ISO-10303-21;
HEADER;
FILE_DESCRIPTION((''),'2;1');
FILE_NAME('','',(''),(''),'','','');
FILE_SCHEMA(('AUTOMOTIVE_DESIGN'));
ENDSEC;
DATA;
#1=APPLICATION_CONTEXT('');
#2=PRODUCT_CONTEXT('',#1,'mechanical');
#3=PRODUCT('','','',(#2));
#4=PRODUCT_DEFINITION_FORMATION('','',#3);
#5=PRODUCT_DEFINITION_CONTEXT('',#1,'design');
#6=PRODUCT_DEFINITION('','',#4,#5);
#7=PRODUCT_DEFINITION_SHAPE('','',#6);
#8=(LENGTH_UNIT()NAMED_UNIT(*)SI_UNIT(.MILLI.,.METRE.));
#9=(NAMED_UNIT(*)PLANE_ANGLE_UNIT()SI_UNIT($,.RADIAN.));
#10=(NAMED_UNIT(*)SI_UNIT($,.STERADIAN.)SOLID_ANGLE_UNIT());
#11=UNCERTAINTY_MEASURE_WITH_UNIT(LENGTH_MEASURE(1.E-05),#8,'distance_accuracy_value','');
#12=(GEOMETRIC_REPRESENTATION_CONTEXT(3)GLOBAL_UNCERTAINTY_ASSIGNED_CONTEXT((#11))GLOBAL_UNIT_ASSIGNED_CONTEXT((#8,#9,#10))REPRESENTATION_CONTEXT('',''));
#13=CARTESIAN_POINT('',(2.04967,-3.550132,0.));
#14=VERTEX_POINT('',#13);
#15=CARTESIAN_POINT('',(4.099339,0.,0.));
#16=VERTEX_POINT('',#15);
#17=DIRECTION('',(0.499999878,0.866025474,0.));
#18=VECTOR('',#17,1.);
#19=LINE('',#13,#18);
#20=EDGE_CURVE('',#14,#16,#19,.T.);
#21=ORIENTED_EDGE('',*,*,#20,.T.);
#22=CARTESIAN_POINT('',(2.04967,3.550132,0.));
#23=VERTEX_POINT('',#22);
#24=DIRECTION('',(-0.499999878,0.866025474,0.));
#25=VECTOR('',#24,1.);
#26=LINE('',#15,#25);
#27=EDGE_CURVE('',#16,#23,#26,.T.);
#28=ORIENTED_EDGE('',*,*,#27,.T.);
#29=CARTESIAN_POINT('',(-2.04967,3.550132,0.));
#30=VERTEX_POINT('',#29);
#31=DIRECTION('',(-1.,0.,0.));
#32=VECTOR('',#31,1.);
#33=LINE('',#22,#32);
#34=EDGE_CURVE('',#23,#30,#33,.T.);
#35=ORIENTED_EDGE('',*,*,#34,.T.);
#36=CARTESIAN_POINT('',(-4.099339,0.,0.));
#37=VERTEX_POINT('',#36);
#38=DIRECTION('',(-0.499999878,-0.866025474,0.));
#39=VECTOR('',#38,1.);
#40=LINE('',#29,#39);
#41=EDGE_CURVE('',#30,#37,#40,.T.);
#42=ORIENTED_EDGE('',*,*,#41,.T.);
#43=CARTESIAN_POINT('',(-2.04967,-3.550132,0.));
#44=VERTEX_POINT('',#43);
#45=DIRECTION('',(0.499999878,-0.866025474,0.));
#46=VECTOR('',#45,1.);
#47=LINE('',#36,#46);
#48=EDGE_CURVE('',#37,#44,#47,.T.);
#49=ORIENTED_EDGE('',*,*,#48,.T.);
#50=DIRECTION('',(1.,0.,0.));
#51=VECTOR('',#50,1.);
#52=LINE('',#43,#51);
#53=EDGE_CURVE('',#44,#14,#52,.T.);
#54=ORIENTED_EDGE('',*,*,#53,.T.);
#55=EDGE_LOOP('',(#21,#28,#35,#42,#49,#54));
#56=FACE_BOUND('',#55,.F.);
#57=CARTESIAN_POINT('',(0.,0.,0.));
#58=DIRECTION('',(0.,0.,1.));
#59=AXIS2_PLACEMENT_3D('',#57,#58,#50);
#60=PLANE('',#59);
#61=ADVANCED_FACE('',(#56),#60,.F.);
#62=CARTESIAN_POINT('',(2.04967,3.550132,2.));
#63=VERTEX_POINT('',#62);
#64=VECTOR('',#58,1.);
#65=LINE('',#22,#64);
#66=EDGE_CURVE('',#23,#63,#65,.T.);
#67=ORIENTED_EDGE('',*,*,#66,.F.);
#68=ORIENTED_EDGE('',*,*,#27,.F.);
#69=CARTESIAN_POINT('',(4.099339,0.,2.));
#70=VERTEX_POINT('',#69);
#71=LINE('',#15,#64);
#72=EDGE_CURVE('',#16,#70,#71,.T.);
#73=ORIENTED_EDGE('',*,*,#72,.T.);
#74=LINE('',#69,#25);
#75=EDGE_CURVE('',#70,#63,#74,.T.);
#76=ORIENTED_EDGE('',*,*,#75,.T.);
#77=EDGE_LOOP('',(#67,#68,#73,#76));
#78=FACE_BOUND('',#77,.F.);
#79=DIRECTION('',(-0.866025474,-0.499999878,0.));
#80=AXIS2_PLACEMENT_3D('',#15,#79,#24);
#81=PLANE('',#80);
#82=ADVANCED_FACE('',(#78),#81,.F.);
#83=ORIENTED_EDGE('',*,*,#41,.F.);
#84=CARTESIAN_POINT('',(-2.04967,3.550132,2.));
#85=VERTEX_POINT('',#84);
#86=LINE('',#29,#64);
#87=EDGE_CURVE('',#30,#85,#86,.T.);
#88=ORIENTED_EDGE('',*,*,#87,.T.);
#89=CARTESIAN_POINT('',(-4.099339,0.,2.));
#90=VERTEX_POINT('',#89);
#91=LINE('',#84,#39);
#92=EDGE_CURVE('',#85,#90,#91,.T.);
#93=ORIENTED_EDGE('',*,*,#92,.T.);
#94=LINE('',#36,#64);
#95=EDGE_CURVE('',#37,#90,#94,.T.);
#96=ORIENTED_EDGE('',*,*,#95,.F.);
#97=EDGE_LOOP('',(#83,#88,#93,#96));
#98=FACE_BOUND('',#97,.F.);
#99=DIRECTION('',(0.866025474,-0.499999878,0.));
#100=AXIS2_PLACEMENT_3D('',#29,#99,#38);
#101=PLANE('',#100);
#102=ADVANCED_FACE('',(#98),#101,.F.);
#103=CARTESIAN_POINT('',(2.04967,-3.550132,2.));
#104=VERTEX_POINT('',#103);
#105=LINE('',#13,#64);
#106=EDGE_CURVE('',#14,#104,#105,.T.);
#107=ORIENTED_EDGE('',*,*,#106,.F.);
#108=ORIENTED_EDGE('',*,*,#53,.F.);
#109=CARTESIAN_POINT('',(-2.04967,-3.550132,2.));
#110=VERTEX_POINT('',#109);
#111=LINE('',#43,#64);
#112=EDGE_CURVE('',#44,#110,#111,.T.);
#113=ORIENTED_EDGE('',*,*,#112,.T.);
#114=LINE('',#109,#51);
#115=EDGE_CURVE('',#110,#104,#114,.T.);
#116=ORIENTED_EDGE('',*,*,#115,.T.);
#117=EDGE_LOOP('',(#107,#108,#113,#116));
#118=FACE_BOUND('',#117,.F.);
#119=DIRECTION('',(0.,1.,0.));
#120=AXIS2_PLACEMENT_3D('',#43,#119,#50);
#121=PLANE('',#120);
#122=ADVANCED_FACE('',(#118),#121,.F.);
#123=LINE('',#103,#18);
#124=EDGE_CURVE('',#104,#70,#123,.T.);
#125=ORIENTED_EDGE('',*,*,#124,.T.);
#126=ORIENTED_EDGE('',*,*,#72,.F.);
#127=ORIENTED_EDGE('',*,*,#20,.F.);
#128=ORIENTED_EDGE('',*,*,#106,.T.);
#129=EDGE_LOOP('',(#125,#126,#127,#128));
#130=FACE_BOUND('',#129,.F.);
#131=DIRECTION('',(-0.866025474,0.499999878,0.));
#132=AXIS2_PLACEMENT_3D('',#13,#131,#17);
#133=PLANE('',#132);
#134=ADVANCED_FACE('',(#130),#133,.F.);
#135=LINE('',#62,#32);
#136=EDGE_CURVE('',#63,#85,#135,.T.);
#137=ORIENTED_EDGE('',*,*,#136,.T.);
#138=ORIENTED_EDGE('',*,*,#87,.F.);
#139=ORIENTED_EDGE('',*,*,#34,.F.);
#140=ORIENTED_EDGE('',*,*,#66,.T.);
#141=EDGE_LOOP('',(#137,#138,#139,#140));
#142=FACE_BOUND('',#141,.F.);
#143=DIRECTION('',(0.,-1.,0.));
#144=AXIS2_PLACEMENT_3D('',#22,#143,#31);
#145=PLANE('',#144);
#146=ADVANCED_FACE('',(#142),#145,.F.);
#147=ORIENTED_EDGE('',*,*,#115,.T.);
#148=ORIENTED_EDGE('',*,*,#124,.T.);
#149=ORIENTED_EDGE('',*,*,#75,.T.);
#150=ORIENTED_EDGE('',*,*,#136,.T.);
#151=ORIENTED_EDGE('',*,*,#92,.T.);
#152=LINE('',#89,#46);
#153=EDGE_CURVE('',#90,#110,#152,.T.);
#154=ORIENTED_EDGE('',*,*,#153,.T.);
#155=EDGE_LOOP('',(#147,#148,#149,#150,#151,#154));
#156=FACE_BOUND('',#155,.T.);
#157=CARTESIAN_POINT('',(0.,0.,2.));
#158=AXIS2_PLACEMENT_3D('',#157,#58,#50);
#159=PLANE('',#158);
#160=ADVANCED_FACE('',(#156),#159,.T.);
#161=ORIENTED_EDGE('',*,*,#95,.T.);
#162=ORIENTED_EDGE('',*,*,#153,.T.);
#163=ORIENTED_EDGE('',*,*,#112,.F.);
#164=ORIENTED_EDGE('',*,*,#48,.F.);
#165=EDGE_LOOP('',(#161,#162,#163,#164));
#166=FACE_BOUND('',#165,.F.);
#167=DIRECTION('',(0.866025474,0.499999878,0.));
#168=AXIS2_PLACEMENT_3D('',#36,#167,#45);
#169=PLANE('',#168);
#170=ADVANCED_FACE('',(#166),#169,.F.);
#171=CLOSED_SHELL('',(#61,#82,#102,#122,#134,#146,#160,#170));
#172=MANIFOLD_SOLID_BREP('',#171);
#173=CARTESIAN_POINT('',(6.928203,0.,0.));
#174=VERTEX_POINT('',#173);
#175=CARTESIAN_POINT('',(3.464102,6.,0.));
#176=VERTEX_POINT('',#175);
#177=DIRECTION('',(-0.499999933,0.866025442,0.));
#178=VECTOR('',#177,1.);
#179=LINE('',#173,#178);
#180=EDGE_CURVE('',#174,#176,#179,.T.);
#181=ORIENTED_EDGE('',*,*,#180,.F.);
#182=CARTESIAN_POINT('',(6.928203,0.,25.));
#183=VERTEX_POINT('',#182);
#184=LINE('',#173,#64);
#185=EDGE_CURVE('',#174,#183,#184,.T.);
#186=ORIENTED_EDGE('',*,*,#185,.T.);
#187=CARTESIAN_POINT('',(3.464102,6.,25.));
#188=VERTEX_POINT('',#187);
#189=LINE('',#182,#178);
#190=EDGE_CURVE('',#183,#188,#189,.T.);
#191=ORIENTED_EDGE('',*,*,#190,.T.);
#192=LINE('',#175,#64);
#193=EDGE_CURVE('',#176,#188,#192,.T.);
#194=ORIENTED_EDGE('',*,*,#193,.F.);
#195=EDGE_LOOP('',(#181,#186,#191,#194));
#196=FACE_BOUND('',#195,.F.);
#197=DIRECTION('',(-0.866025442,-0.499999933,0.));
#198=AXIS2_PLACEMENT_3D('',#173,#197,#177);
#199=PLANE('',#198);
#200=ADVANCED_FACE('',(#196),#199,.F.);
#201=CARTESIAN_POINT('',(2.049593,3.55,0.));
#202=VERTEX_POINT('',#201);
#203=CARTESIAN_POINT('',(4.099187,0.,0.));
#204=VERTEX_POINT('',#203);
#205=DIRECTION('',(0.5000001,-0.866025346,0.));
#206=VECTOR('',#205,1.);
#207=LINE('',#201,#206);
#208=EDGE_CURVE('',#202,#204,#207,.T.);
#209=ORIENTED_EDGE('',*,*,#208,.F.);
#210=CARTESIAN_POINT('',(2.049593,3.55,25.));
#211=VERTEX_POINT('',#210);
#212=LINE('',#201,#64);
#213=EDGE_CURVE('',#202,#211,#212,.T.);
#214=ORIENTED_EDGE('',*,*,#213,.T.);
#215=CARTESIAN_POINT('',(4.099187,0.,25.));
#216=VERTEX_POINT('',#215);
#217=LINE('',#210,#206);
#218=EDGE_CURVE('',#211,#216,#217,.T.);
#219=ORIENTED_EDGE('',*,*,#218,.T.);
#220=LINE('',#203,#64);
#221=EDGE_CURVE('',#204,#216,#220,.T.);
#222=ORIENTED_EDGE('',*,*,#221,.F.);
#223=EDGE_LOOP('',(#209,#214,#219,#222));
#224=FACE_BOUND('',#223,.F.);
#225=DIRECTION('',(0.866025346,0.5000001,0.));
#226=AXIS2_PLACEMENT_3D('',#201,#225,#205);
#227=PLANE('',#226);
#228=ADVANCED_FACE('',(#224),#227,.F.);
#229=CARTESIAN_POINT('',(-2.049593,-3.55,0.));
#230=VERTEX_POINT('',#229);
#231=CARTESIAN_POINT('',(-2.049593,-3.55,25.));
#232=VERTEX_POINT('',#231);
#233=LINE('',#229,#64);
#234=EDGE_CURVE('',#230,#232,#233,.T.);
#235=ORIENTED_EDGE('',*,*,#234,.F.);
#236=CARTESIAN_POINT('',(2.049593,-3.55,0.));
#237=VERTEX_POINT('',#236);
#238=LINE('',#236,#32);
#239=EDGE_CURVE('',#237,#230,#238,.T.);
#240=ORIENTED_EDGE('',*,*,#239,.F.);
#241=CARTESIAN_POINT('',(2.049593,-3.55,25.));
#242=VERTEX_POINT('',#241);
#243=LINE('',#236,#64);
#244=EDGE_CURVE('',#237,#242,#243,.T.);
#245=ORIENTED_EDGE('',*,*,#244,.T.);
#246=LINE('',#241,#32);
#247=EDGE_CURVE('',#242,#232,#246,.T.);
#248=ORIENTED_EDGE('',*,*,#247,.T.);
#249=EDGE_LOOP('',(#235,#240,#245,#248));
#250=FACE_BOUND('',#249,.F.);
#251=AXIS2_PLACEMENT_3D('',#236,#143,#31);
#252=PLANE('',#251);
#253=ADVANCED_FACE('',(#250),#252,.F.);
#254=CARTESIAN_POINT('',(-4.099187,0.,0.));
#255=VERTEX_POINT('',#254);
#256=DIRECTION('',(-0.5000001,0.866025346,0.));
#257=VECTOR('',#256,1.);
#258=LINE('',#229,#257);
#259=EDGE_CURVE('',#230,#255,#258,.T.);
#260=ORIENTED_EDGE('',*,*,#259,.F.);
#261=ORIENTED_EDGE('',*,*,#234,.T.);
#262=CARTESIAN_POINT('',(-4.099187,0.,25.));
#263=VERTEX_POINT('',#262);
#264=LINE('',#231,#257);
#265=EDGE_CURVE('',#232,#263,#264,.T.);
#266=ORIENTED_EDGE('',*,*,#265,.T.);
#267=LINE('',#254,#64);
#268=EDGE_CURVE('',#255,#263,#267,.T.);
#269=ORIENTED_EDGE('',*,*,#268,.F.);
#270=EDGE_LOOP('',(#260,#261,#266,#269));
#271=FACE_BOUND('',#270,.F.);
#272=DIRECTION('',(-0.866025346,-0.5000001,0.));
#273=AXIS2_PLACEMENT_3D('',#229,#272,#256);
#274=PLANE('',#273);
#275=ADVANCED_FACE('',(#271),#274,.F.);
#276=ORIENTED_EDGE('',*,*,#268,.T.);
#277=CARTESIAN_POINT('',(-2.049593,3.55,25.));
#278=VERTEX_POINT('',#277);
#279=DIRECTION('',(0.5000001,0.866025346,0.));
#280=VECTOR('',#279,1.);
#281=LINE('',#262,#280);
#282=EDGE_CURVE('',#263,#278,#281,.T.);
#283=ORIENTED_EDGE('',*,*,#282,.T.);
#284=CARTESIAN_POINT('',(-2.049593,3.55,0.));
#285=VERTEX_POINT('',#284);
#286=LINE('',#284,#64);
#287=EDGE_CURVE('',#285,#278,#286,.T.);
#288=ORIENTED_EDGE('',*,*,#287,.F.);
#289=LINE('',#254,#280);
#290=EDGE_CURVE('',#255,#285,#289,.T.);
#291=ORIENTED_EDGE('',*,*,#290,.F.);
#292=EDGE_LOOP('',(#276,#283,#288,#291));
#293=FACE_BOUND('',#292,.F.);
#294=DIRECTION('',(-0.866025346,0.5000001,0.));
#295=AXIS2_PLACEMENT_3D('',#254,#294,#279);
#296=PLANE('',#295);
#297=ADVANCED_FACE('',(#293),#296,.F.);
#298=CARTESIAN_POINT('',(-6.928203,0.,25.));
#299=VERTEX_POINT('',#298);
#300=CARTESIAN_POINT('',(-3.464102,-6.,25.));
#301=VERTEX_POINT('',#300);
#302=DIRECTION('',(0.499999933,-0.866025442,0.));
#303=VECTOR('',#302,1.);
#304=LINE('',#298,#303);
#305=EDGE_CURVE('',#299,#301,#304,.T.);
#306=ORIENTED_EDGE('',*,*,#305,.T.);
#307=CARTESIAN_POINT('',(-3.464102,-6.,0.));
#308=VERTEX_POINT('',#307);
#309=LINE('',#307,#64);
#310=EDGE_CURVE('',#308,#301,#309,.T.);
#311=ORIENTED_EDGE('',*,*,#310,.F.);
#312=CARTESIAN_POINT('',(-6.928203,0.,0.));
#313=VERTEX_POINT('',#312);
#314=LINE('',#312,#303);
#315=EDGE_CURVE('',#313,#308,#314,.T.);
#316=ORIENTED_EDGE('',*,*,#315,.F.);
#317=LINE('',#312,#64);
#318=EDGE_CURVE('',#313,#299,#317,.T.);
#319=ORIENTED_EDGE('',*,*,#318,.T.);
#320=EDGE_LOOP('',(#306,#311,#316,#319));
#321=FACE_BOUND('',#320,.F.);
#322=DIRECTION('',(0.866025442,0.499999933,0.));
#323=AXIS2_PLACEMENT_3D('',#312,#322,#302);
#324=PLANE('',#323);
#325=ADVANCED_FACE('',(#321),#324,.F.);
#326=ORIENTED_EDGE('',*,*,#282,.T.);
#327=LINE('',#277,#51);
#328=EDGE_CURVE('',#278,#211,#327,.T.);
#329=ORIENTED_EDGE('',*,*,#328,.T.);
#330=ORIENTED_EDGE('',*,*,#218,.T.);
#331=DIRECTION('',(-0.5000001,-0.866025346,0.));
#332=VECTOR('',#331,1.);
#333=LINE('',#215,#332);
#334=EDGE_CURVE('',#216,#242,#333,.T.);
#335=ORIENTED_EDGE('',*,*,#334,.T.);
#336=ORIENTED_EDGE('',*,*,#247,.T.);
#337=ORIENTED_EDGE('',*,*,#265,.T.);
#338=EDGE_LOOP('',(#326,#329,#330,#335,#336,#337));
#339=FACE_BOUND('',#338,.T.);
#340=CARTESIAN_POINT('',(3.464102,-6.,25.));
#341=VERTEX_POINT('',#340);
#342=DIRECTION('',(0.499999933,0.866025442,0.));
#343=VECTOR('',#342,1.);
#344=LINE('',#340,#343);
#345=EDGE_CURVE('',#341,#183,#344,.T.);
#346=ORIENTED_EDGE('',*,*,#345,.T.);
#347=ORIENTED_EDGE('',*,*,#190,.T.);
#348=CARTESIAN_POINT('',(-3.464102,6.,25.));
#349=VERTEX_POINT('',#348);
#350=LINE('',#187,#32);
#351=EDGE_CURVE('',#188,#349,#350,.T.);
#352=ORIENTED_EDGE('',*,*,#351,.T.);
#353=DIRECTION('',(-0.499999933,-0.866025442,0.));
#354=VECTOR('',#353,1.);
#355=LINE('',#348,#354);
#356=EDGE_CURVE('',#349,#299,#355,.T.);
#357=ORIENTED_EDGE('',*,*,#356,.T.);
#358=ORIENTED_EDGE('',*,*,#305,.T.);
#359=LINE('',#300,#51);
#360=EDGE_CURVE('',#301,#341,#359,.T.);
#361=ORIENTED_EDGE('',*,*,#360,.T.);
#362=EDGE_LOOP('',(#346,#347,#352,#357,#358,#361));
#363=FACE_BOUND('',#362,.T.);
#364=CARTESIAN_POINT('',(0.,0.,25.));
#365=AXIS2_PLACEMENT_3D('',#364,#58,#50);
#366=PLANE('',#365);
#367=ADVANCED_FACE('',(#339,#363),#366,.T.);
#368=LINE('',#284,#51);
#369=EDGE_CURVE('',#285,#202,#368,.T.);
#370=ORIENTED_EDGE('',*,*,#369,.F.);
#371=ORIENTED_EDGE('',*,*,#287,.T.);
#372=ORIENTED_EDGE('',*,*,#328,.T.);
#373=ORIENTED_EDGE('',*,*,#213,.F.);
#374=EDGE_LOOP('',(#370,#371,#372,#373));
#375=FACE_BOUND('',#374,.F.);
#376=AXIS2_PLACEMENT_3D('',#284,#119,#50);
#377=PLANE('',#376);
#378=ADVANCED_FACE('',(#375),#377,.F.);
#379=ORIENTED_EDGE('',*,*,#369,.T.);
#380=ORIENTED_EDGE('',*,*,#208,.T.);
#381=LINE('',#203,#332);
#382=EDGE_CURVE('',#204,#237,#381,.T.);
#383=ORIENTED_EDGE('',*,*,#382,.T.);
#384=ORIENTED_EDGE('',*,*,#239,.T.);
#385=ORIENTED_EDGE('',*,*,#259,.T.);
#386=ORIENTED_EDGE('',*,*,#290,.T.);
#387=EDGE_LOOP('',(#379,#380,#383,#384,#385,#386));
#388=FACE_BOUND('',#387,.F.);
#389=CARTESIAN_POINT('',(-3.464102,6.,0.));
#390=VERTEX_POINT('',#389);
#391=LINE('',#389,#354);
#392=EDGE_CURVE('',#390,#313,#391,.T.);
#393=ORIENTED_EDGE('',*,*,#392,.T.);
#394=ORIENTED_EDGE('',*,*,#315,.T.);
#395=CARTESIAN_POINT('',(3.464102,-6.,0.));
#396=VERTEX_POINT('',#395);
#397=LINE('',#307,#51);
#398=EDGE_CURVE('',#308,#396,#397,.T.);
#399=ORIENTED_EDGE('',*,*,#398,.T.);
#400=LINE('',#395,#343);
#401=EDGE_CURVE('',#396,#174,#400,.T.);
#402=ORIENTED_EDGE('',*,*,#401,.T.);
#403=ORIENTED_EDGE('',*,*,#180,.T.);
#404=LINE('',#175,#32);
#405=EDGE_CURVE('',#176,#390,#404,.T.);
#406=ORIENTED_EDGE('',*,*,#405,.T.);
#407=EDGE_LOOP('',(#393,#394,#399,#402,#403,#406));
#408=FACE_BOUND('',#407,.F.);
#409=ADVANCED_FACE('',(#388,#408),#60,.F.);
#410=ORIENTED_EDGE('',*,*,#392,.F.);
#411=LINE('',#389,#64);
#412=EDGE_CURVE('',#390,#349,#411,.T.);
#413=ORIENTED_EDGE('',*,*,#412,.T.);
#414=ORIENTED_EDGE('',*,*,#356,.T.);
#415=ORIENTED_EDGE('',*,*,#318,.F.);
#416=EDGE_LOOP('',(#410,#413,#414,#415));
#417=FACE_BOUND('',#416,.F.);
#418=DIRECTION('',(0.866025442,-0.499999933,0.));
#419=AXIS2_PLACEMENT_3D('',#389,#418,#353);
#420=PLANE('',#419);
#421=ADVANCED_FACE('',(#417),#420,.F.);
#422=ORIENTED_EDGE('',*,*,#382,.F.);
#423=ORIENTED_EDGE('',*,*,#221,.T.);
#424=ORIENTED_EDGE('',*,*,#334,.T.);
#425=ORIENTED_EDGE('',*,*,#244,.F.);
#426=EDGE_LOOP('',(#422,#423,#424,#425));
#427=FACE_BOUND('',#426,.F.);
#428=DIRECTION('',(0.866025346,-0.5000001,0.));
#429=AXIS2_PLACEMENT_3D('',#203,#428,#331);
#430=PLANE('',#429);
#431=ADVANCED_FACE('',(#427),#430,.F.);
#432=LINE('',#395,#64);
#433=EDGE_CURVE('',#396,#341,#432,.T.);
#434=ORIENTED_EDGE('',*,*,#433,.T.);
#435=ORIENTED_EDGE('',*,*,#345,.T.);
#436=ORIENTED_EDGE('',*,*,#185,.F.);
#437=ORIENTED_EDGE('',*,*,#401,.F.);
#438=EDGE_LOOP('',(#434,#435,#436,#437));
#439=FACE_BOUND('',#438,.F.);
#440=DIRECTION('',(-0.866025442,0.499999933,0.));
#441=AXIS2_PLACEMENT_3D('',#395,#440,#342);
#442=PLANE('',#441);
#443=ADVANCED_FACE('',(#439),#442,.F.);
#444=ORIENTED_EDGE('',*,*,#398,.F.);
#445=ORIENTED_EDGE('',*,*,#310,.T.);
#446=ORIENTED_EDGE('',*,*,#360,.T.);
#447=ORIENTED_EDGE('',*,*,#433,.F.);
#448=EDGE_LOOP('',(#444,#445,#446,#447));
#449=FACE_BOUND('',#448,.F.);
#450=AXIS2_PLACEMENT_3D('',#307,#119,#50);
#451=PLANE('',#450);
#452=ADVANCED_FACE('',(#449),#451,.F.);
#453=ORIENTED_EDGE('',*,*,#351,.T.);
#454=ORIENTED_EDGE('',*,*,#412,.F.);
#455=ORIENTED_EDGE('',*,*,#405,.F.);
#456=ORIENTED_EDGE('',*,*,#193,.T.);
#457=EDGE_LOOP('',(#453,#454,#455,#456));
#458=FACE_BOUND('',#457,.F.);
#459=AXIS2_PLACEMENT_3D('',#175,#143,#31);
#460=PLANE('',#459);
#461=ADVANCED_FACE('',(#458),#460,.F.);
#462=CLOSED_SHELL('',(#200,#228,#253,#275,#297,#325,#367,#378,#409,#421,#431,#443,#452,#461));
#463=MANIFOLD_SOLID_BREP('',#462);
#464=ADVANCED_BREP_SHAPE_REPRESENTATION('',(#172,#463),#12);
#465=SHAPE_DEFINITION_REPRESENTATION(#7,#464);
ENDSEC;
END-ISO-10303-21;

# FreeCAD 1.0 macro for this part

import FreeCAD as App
import Part
import Sketcher

V = App.Vector
Q = App.Units.Quantity

doc = App.newDocument("Part")
body = doc.addObject("PartDesign::Body", "Body")

# Sketch on XY plane
sketch1 = body.newObject("Sketcher::SketchObject", "Sketch")
sketch1.AttachmentSupport = (doc.getObject("XY_Plane"), [""])
sketch1.MapMode = "FlatFace"
sketch1.addGeometry(Part.LineSegment(V(-3.5, -6, 0), V(3.5, -6, 0)), False)
sketch1.addGeometry(Part.LineSegment(V(3.5, -6, 0), V(6.9, 0, 0)), False)
sketch1.addGeometry(Part.LineSegment(V(6.9, 0, 0), V(3.5, 6, 0)), False)
sketch1.addGeometry(Part.LineSegment(V(3.5, 6, 0), V(-3.5, 6, 0)), False)
sketch1.addGeometry(Part.LineSegment(V(-3.5, 6, 0), V(-6.9, 0, 0)), False)
sketch1.addGeometry(Part.LineSegment(V(-6.9, 0, 0), V(-3.5, -6, 0)), False)
sketch1.addGeometry(Part.LineSegment(V(-2, -3.5, 0), V(-4.1, 0, 0)), False)
sketch1.addGeometry(Part.LineSegment(V(-4.1, 0, 0), V(-2, 3.5, 0)), False)
sketch1.addGeometry(Part.LineSegment(V(-2, 3.5, 0), V(2, 3.5, 0)), False)
sketch1.addGeometry(Part.LineSegment(V(2, 3.5, 0), V(4.1, 0, 0)), False)
sketch1.addGeometry(Part.LineSegment(V(4.1, 0, 0), V(2, -3.5, 0)), False)
sketch1.addGeometry(Part.LineSegment(V(2, -3.5, 0), V(-2, -3.5, 0)), False)
sketch1.addConstraint(Sketcher.Constraint("Coincident", 0, 2, 1, 1))
sketch1.addConstraint(Sketcher.Constraint("Coincident", 1, 2, 2, 1))
sketch1.addConstraint(Sketcher.Constraint("Coincident", 2, 2, 3, 1))
sketch1.addConstraint(Sketcher.Constraint("Coincident", 3, 2, 4, 1))
sketch1.addConstraint(Sketcher.Constraint("Coincident", 4, 2, 5, 1))
sketch1.addConstraint(Sketcher.Constraint("Coincident", 5, 2, 0, 1))
sketch1.addConstraint(Sketcher.Constraint("Coincident", 6, 2, 7, 1))
sketch1.addConstraint(Sketcher.Constraint("Coincident", 7, 2, 8, 1))
sketch1.addConstraint(Sketcher.Constraint("Coincident", 8, 2, 9, 1))
sketch1.addConstraint(Sketcher.Constraint("Coincident", 9, 2, 10, 1))
sketch1.addConstraint(Sketcher.Constraint("Coincident", 10, 2, 11, 1))
sketch1.addConstraint(Sketcher.Constraint("Coincident", 11, 2, 6, 1))
sketch1.addConstraint(Sketcher.Constraint("Horizontal", 0))
sketch1.addConstraint(Sketcher.Constraint("Horizontal", 3))
sketch1.addConstraint(Sketcher.Constraint("Horizontal", 8))
sketch1.addConstraint(Sketcher.Constraint("Horizontal", 11))
sketch1.addConstraint(Sketcher.Constraint("Symmetric", 0, 2, 3, 2, -1, 1))
sketch1.addConstraint(Sketcher.Constraint("Symmetric", 1, 2, 4, 2, -1, 1))
sketch1.addConstraint(Sketcher.Constraint("Symmetric", 6, 2, 9, 2, -1, 1))
sketch1.addConstraint(Sketcher.Constraint("Symmetric", 7, 2, 10, 2, -1, 1))
sketch1.addConstraint(Sketcher.Constraint("PointOnObject", 1, 2, -1))
sketch1.addConstraint(Sketcher.Constraint("PointOnObject", 6, 2, -1))
sketch1.addConstraint(Sketcher.Constraint("Parallel", 2, 5))
sketch1.addConstraint(Sketcher.Constraint("Parallel", 5, 6))
sketch1.addConstraint(Sketcher.Constraint("Parallel", 4, 7))
sketch1.addConstraint(Sketcher.Constraint("Parallel", 6, 9))
sketch1.addConstraint(Sketcher.Constraint("Vertical", 0, 2, 2, 2))
sketch1.addConstraint(Sketcher.Constraint("Angle", 1, Q("60.000004 deg")))
sketch1.addConstraint(Sketcher.Constraint("DistanceY", 0, 2, -1, 1, 6.0))
sketch1.addConstraint(Sketcher.Constraint("DistanceY", -1, 1, 7, 2, 3.55))
sketch1.addConstraint(Sketcher.Constraint("DistanceX", -1, 1, 0, 2, 3.464102))
sketch1.addConstraint(Sketcher.Constraint("DistanceX", 8, 1, 8, 2, 4.099186))
pad1 = body.newObject("PartDesign::Pad", "Pad")
pad1.Profile = sketch1
pad1.Length = 25
body2 = doc.addObject("PartDesign::Body", "Body001")

# Sketch on XY plane
sketch2 = body2.newObject("Sketcher::SketchObject", "Sketch001")
sketch2.AttachmentSupport = (doc.getObject("XY_Plane001"), [""])
sketch2.MapMode = "FlatFace"
sketch2.addGeometry(Part.LineSegment(V(-2, -3.6, 0), V(2, -3.6, 0)), False)
sketch2.addGeometry(Part.LineSegment(V(2, -3.6, 0), V(4.1, 0, 0)), False)
sketch2.addGeometry(Part.LineSegment(V(4.1, 0, 0), V(2, 3.6, 0)), False)
sketch2.addGeometry(Part.LineSegment(V(2, 3.6, 0), V(-2, 3.6, 0)), False)
sketch2.addGeometry(Part.LineSegment(V(-2, 3.6, 0), V(-4.1, 0, 0)), False)
sketch2.addGeometry(Part.LineSegment(V(-4.1, 0, 0), V(-2, -3.6, 0)), False)
sketch2.addConstraint(Sketcher.Constraint("Coincident", 0, 2, 1, 1))
sketch2.addConstraint(Sketcher.Constraint("Coincident", 1, 2, 2, 1))
sketch2.addConstraint(Sketcher.Constraint("Coincident", 2, 2, 3, 1))
sketch2.addConstraint(Sketcher.Constraint("Coincident", 3, 2, 4, 1))
sketch2.addConstraint(Sketcher.Constraint("Coincident", 4, 2, 5, 1))
sketch2.addConstraint(Sketcher.Constraint("Coincident", 5, 2, 0, 1))
sketch2.addConstraint(Sketcher.Constraint("Horizontal", 0))
sketch2.addConstraint(Sketcher.Constraint("Horizontal", 3))
sketch2.addConstraint(Sketcher.Constraint("Symmetric", 0, 2, 3, 2, -1, 1))
sketch2.addConstraint(Sketcher.Constraint("Symmetric", 1, 2, 4, 2, -1, 1))
sketch2.addConstraint(Sketcher.Constraint("PointOnObject", 1, 2, -1))
sketch2.addConstraint(Sketcher.Constraint("Parallel", 2, 5))
sketch2.addConstraint(Sketcher.Constraint("Vertical", 0, 2, 2, 2))
sketch2.addConstraint(Sketcher.Constraint("Angle", 1, Q("60.000008 deg")))
sketch2.addConstraint(Sketcher.Constraint("DistanceX", 0, 1, 0, 2, 4.09934))
sketch2.addConstraint(Sketcher.Constraint("Distance", 1, 4.099339))
pad2 = body2.newObject("PartDesign::Pad", "Pad001")
pad2.Profile = sketch2
pad2.Length = 2

doc.recompute()
